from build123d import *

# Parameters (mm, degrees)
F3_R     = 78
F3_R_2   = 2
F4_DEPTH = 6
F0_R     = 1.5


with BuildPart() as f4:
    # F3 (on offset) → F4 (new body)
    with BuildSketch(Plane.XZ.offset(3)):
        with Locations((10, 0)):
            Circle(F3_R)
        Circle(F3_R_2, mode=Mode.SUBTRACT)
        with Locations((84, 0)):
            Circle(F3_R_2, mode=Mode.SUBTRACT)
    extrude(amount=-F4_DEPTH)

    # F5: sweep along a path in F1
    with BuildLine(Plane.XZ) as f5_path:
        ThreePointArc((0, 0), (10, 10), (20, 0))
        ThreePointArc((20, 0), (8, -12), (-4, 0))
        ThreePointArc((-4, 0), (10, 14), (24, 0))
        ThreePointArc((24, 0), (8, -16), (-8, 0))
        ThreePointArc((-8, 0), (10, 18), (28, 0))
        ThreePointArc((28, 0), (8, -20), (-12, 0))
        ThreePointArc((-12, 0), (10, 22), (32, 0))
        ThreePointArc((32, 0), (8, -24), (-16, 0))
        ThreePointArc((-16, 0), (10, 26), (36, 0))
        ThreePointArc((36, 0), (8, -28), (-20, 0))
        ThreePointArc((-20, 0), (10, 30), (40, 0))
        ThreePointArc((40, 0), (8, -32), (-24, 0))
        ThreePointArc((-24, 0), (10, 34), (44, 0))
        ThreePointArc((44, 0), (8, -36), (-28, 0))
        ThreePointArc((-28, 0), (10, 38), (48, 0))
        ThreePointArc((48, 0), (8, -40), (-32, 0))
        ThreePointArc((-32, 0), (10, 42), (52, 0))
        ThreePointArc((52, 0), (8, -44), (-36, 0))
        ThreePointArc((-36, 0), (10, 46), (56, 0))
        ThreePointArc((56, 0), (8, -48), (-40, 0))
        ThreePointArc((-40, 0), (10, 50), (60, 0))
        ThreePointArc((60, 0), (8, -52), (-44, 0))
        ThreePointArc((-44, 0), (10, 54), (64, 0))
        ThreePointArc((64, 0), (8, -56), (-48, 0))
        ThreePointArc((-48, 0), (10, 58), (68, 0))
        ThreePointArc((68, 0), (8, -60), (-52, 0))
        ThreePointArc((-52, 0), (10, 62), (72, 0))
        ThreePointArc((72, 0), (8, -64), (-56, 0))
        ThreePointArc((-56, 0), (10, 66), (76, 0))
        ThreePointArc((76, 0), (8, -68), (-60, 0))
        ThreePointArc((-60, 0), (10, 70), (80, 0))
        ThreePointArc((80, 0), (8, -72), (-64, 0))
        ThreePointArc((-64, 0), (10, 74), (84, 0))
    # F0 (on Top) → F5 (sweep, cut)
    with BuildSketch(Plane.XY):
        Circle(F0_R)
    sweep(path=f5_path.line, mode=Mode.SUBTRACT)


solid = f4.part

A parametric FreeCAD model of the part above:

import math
import FreeCAD as App
import Part
import Sketcher
Q = App.Units.Quantity

doc = App.newDocument("Part")
body = doc.addObject("PartDesign::Body", "Body")

sketch1 = doc.addObject("Sketcher::SketchObject", "Sketch")
body.addObject(sketch1)
sketch1.AttachmentSupport = (doc.XZ_Plane, [""])
sketch1.MapMode = "FlatFace"
sketch1.AttachmentOffset = App.Placement(App.Vector(0, 0, 3), App.Rotation())
sketch1.addGeometry(Part.Circle(App.Vector(10, 0, 0), App.Vector(0, 0, 1), 78), False)
sketch1.addGeometry(Part.Circle(App.Vector(0, 0, 0), App.Vector(0, 0, 1), 2), False)
sketch1.addGeometry(Part.Circle(App.Vector(84, 0, 0), App.Vector(0, 0, 1), 2), False)
sketch1.addConstraint(Sketcher.Constraint("Coincident", 1, 3, -1, 1))
sketch1.addConstraint(Sketcher.Constraint("Equal", 1, 2))
sketch1.addConstraint(Sketcher.Constraint("PointOnObject", 0, 3, -1))
sketch1.addConstraint(Sketcher.Constraint("PointOnObject", 2, 3, -1))
sketch1.addConstraint(Sketcher.Constraint("Diameter", 0, Q("156 mm")))
sketch1.addConstraint(Sketcher.Constraint("Diameter", 1, Q("4 mm")))
sketch1.addConstraint(Sketcher.Constraint("DistanceX", -1, 1, 0, 3, Q("10 mm")))
sketch1.addConstraint(Sketcher.Constraint("DistanceX", -1, 1, 2, 3, Q("84 mm")))
pad1 = doc.addObject("PartDesign::Pad", "Pad")
body.addObject(pad1)
pad1.Profile = sketch1
pad1.Length = 6
pad1.Reversed = True

sketch2 = doc.addObject("Sketcher::SketchObject", "Sketch001")
body.addObject(sketch2)
sketch2.AttachmentSupport = (doc.XY_Plane, [""])
sketch2.MapMode = "FlatFace"
sketch2.addGeometry(Part.Circle(App.Vector(0, 0, 0), App.Vector(0, 0, 1), 1.5), False)
sketch2.addConstraint(Sketcher.Constraint("Coincident", 0, 3, -1, 1))
sketch2.addConstraint(Sketcher.Constraint("Diameter", 0, Q("3 mm")))

sketch3 = doc.addObject("Sketcher::SketchObject", "Sketch002")
body.addObject(sketch3)
sketch3.AttachmentSupport = (doc.XZ_Plane, [""])
sketch3.MapMode = "FlatFace"
sketch3.addGeometry(Part.ArcOfCircle(Part.Circle(App.Vector(10, 0, 0), App.Vector(0, 0, 1), 10), math.radians(0), math.radians(180)), False)
sketch3.addGeometry(Part.ArcOfCircle(Part.Circle(App.Vector(8, 0, 0), App.Vector(0, 0, 1), 12), math.radians(180), math.radians(360)), False)
sketch3.addGeometry(Part.ArcOfCircle(Part.Circle(App.Vector(10, 0, 0), App.Vector(0, 0, 1), 14), math.radians(0), math.radians(180)), False)
sketch3.addGeometry(Part.ArcOfCircle(Part.Circle(App.Vector(8, 0, 0), App.Vector(0, 0, 1), 16), math.radians(180), math.radians(360)), False)
sketch3.addGeometry(Part.ArcOfCircle(Part.Circle(App.Vector(10, 0, 0), App.Vector(0, 0, 1), 18), math.radians(0), math.radians(180)), False)
sketch3.addGeometry(Part.ArcOfCircle(Part.Circle(App.Vector(8, 0, 0), App.Vector(0, 0, 1), 20), math.radians(180), math.radians(360)), False)
sketch3.addGeometry(Part.ArcOfCircle(Part.Circle(App.Vector(10, 0, 0), App.Vector(0, 0, 1), 22), math.radians(0), math.radians(180)), False)
sketch3.addGeometry(Part.ArcOfCircle(Part.Circle(App.Vector(8, 0, 0), App.Vector(0, 0, 1), 24), math.radians(180), math.radians(360)), False)
sketch3.addGeometry(Part.ArcOfCircle(Part.Circle(App.Vector(10, 0, 0), App.Vector(0, 0, 1), 26), math.radians(0), math.radians(180)), False)
sketch3.addGeometry(Part.ArcOfCircle(Part.Circle(App.Vector(8, 0, 0), App.Vector(0, 0, 1), 28), math.radians(180), math.radians(360)), False)
sketch3.addGeometry(Part.ArcOfCircle(Part.Circle(App.Vector(10, 0, 0), App.Vector(0, 0, 1), 30), math.radians(0), math.radians(180)), False)
sketch3.addGeometry(Part.ArcOfCircle(Part.Circle(App.Vector(8, 0, 0), App.Vector(0, 0, 1), 32), math.radians(180), math.radians(360)), False)
sketch3.addGeometry(Part.ArcOfCircle(Part.Circle(App.Vector(10, 0, 0), App.Vector(0, 0, 1), 34), math.radians(0), math.radians(180)), False)
sketch3.addGeometry(Part.ArcOfCircle(Part.Circle(App.Vector(8, 0, 0), App.Vector(0, 0, 1), 36), math.radians(180), math.radians(360)), False)
sketch3.addGeometry(Part.ArcOfCircle(Part.Circle(App.Vector(10, 0, 0), App.Vector(0, 0, 1), 38), math.radians(0), math.radians(180)), False)
sketch3.addGeometry(Part.ArcOfCircle(Part.Circle(App.Vector(8, 0, 0), App.Vector(0, 0, 1), 40), math.radians(180), math.radians(360)), False)
sketch3.addGeometry(Part.ArcOfCircle(Part.Circle(App.Vector(10, 0, 0), App.Vector(0, 0, 1), 42), math.radians(0), math.radians(180)), False)
sketch3.addGeometry(Part.ArcOfCircle(Part.Circle(App.Vector(8, 0, 0), App.Vector(0, 0, 1), 44), math.radians(180), math.radians(360)), False)
sketch3.addGeometry(Part.ArcOfCircle(Part.Circle(App.Vector(10, 0, 0), App.Vector(0, 0, 1), 46), math.radians(0), math.radians(180)), False)
sketch3.addGeometry(Part.ArcOfCircle(Part.Circle(App.Vector(8, 0, 0), App.Vector(0, 0, 1), 48), math.radians(180), math.radians(360)), False)
sketch3.addGeometry(Part.ArcOfCircle(Part.Circle(App.Vector(10, 0, 0), App.Vector(0, 0, 1), 50), math.radians(0), math.radians(180)), False)
sketch3.addGeometry(Part.ArcOfCircle(Part.Circle(App.Vector(8, 0, 0), App.Vector(0, 0, 1), 52), math.radians(180), math.radians(360)), False)
sketch3.addGeometry(Part.ArcOfCircle(Part.Circle(App.Vector(10, 0, 0), App.Vector(0, 0, 1), 54), math.radians(0), math.radians(180)), False)
sketch3.addGeometry(Part.ArcOfCircle(Part.Circle(App.Vector(8, 0, 0), App.Vector(0, 0, 1), 56), math.radians(180), math.radians(360)), False)
sketch3.addGeometry(Part.ArcOfCircle(Part.Circle(App.Vector(10, 0, 0), App.Vector(0, 0, 1), 58), math.radians(0), math.radians(180)), False)
sketch3.addGeometry(Part.ArcOfCircle(Part.Circle(App.Vector(8, 0, 0), App.Vector(0, 0, 1), 60), math.radians(180), math.radians(360)), False)
sketch3.addGeometry(Part.ArcOfCircle(Part.Circle(App.Vector(10, 0, 0), App.Vector(0, 0, 1), 62), math.radians(0), math.radians(180)), False)
sketch3.addGeometry(Part.ArcOfCircle(Part.Circle(App.Vector(8, 0, 0), App.Vector(0, 0, 1), 64), math.radians(180), math.radians(360)), False)
sketch3.addGeometry(Part.ArcOfCircle(Part.Circle(App.Vector(10, 0, 0), App.Vector(0, 0, 1), 66), math.radians(0), math.radians(180)), False)
sketch3.addGeometry(Part.ArcOfCircle(Part.Circle(App.Vector(8, 0, 0), App.Vector(0, 0, 1), 68), math.radians(180), math.radians(360)), False)
sketch3.addGeometry(Part.ArcOfCircle(Part.Circle(App.Vector(10, 0, 0), App.Vector(0, 0, 1), 70), math.radians(0), math.radians(180)), False)
sketch3.addGeometry(Part.ArcOfCircle(Part.Circle(App.Vector(8, 0, 0), App.Vector(0, 0, 1), 72), math.radians(180), math.radians(360)), False)
sketch3.addGeometry(Part.ArcOfCircle(Part.Circle(App.Vector(10, 0, 0), App.Vector(0, 0, 1), 74), math.radians(0), math.radians(180)), False)
sketch3.addConstraint(Sketcher.Constraint("Tangent", 0, 1, 1, 2))
sketch3.addConstraint(Sketcher.Constraint("Tangent", 1, 1, 2, 2))
sketch3.addConstraint(Sketcher.Constraint("Tangent", 2, 1, 3, 2))
sketch3.addConstraint(Sketcher.Constraint("Tangent", 3, 1, 4, 2))
sketch3.addConstraint(Sketcher.Constraint("Tangent", 4, 1, 5, 2))
sketch3.addConstraint(Sketcher.Constraint("Tangent", 5, 1, 6, 2))
sketch3.addConstraint(Sketcher.Constraint("Tangent", 6, 1, 7, 2))
sketch3.addConstraint(Sketcher.Constraint("Tangent", 7, 1, 8, 2))
sketch3.addConstraint(Sketcher.Constraint("Tangent", 8, 1, 9, 2))
sketch3.addConstraint(Sketcher.Constraint("Tangent", 9, 1, 10, 2))
sketch3.addConstraint(Sketcher.Constraint("Tangent", 10, 1, 11, 2))
sketch3.addConstraint(Sketcher.Constraint("Tangent", 11, 1, 12, 2))
sketch3.addConstraint(Sketcher.Constraint("Tangent", 12, 1, 13, 2))
sketch3.addConstraint(Sketcher.Constraint("Tangent", 13, 1, 14, 2))
sketch3.addConstraint(Sketcher.Constraint("Tangent", 14, 1, 15, 2))
sketch3.addConstraint(Sketcher.Constraint("Tangent", 15, 1, 16, 2))
sketch3.addConstraint(Sketcher.Constraint("Tangent", 16, 1, 17, 2))
sketch3.addConstraint(Sketcher.Constraint("Tangent", 17, 1, 18, 2))
sketch3.addConstraint(Sketcher.Constraint("Tangent", 18, 1, 19, 2))
sketch3.addConstraint(Sketcher.Constraint("Tangent", 19, 1, 20, 2))
sketch3.addConstraint(Sketcher.Constraint("Tangent", 20, 1, 21, 2))
sketch3.addConstraint(Sketcher.Constraint("Tangent", 21, 1, 22, 2))
sketch3.addConstraint(Sketcher.Constraint("Tangent", 22, 1, 23, 2))
sketch3.addConstraint(Sketcher.Constraint("Tangent", 23, 1, 24, 2))
sketch3.addConstraint(Sketcher.Constraint("Tangent", 24, 1, 25, 2))
sketch3.addConstraint(Sketcher.Constraint("Tangent", 25, 1, 26, 2))
sketch3.addConstraint(Sketcher.Constraint("Tangent", 26, 1, 27, 2))
sketch3.addConstraint(Sketcher.Constraint("Tangent", 27, 1, 28, 2))
sketch3.addConstraint(Sketcher.Constraint("Tangent", 28, 1, 29, 2))
sketch3.addConstraint(Sketcher.Constraint("Tangent", 29, 1, 30, 2))
sketch3.addConstraint(Sketcher.Constraint("Tangent", 30, 1, 31, 2))
sketch3.addConstraint(Sketcher.Constraint("Tangent", 31, 1, 32, 2))
sketch3.addConstraint(Sketcher.Constraint("Coincident", 0, 2, -1, 1))
sketch3.addConstraint(Sketcher.Constraint("Coincident", 2, 3, 0, 3))
sketch3.addConstraint(Sketcher.Constraint("Coincident", 3, 3, 1, 3))
sketch3.addConstraint(Sketcher.Constraint("Coincident", 4, 3, 0, 3))
sketch3.addConstraint(Sketcher.Constraint("Coincident", 5, 3, 1, 3))
sketch3.addConstraint(Sketcher.Constraint("Coincident", 6, 3, 0, 3))
sketch3.addConstraint(Sketcher.Constraint("Coincident", 7, 3, 1, 3))
sketch3.addConstraint(Sketcher.Constraint("Coincident", 8, 3, 0, 3))
sketch3.addConstraint(Sketcher.Constraint("Coincident", 9, 3, 1, 3))
sketch3.addConstraint(Sketcher.Constraint("Coincident", 10, 3, 0, 3))
sketch3.addConstraint(Sketcher.Constraint("Coincident", 11, 3, 1, 3))
sketch3.addConstraint(Sketcher.Constraint("Coincident", 12, 3, 0, 3))
sketch3.addConstraint(Sketcher.Constraint("Coincident", 13, 3, 1, 3))
sketch3.addConstraint(Sketcher.Constraint("Coincident", 14, 3, 0, 3))
sketch3.addConstraint(Sketcher.Constraint("Coincident", 15, 3, 1, 3))
sketch3.addConstraint(Sketcher.Constraint("Coincident", 16, 3, 0, 3))
sketch3.addConstraint(Sketcher.Constraint("Coincident", 17, 3, 1, 3))
sketch3.addConstraint(Sketcher.Constraint("Coincident", 18, 3, 0, 3))
sketch3.addConstraint(Sketcher.Constraint("Coincident", 19, 3, 1, 3))
sketch3.addConstraint(Sketcher.Constraint("Coincident", 20, 3, 0, 3))
sketch3.addConstraint(Sketcher.Constraint("Coincident", 21, 3, 1, 3))
sketch3.addConstraint(Sketcher.Constraint("Coincident", 22, 3, 0, 3))
sketch3.addConstraint(Sketcher.Constraint("Coincident", 23, 3, 1, 3))
sketch3.addConstraint(Sketcher.Constraint("Coincident", 24, 3, 0, 3))
sketch3.addConstraint(Sketcher.Constraint("Coincident", 25, 3, 1, 3))
sketch3.addConstraint(Sketcher.Constraint("Coincident", 26, 3, 0, 3))
sketch3.addConstraint(Sketcher.Constraint("Coincident", 27, 3, 1, 3))
sketch3.addConstraint(Sketcher.Constraint("Coincident", 28, 3, 0, 3))
sketch3.addConstraint(Sketcher.Constraint("Coincident", 29, 3, 1, 3))
sketch3.addConstraint(Sketcher.Constraint("Coincident", 30, 3, 0, 3))
sketch3.addConstraint(Sketcher.Constraint("Coincident", 31, 3, 1, 3))
sketch3.addConstraint(Sketcher.Constraint("Coincident", 32, 3, 0, 3))
sketch3.addConstraint(Sketcher.Constraint("Symmetric", 0, 1, 9, 1, -1, 1))
sketch3.addConstraint(Sketcher.Constraint("PointOnObject", 0, 3, -1))
sketch3.addConstraint(Sketcher.Constraint("PointOnObject", 32, 1, -1))
sketch3.addConstraint(Sketcher.Constraint("Radius", 0, Q("10 mm")))
doc.recompute()

subtractivepipe = doc.addObject("PartDesign::SubtractivePipe", "SubtractivePipe")
body.addObject(subtractivepipe)
subtractivepipe.Profile = sketch2
subtractivepipe.Spine = (sketch3, ["Edge1", "Edge2", "Edge3", "Edge4", "Edge5", "Edge6", "Edge7", "Edge8", "Edge9", "Edge10", "Edge11", "Edge12", "Edge13", "Edge14", "Edge15", "Edge16", "Edge17", "Edge18", "Edge19", "Edge20", "Edge21", "Edge22", "Edge23", "Edge24", "Edge25", "Edge26", "Edge27", "Edge28", "Edge29", "Edge30", "Edge31", "Edge32", "Edge33"])

doc.recompute()
